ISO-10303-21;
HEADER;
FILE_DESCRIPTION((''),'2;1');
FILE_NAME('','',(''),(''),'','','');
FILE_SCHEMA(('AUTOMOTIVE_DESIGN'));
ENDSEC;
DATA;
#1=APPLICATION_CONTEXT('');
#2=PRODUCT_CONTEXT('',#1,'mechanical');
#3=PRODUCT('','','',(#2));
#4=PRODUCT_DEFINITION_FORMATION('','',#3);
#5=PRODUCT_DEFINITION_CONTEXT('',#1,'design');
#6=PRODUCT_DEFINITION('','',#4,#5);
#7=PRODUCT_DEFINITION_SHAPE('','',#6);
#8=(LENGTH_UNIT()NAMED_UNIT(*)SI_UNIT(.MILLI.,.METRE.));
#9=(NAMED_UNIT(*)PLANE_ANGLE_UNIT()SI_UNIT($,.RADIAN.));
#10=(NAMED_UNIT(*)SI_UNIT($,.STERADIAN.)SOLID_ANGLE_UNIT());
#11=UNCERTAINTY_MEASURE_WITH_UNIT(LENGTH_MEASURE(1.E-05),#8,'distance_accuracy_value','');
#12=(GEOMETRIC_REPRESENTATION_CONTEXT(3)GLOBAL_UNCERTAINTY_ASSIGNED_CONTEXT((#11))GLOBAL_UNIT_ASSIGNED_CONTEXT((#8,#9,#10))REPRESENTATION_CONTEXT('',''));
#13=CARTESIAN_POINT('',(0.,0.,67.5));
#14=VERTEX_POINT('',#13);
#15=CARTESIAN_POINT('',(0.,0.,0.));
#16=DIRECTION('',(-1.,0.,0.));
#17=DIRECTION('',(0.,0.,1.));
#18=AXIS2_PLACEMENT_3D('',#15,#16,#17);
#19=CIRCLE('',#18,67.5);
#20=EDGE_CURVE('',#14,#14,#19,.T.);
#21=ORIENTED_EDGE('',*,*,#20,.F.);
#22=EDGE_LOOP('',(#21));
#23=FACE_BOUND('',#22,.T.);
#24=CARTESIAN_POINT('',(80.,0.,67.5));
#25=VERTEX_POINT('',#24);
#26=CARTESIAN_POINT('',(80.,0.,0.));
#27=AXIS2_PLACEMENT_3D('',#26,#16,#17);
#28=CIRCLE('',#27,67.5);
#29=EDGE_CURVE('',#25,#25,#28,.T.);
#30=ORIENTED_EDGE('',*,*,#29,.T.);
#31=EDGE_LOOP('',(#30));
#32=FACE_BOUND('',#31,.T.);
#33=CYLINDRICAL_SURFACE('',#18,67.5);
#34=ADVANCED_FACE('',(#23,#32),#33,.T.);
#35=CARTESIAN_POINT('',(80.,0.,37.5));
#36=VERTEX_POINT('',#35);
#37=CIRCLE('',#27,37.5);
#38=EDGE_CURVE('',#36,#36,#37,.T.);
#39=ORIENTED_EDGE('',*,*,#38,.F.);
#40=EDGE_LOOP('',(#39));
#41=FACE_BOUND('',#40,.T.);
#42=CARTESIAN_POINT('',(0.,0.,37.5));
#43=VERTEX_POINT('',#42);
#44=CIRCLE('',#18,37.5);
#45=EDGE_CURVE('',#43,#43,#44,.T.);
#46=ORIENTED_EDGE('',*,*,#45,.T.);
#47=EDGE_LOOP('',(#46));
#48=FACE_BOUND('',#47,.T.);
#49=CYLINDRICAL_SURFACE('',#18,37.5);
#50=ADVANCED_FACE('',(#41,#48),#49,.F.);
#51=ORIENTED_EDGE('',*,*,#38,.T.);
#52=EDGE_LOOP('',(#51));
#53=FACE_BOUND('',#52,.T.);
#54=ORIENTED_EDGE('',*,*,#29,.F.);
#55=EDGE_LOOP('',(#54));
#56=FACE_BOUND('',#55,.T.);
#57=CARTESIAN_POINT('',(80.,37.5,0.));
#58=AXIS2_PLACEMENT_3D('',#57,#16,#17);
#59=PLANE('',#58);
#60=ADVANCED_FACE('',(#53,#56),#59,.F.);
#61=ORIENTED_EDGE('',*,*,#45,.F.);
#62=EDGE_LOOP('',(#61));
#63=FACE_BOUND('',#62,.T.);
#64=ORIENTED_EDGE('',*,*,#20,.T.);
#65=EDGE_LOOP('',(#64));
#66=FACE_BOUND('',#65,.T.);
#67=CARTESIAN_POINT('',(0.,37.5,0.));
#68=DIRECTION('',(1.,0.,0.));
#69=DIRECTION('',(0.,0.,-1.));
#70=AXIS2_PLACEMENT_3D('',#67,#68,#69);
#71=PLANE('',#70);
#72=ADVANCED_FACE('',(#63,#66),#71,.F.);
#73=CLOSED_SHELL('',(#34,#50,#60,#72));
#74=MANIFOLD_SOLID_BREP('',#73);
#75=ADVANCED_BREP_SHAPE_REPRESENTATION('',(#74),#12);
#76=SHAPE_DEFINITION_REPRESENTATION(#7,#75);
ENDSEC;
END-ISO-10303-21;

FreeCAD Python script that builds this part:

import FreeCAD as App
import Part
import Sketcher

V = App.Vector
Q = App.Units.Quantity


def add_polygon(sketch, points):
    """Adds a closed chain of lines whose ends are joined by coincident constraints."""
    first, n = sketch.GeometryCount, len(points)
    for a, b in zip(points, points[1:] + points[:1]):
        sketch.addGeometry(Part.LineSegment(App.Vector(*a, 0), App.Vector(*b, 0)), False)
    for i in range(n):
        sketch.addConstraint(Sketcher.Constraint("Coincident", first + i, 2, first + (i + 1) % n, 1))

doc = App.newDocument("Part")
body = doc.addObject("PartDesign::Body", "Body")

sketch1 = body.newObject("Sketcher::SketchObject", "Sketch")
sketch1.AttachmentSupport = (doc.getObject("XY_Plane"), [""])
sketch1.MapMode = "FlatFace"
add_polygon(sketch1, [(0, 68), (0, 38), (80, 38), (80, 68)])
sketch1.addConstraint([
    Sketcher.Constraint("Vertical", 0),
    Sketcher.Constraint("Horizontal", 1),
    Sketcher.Constraint("Vertical", 2),
    Sketcher.Constraint("Horizontal", 3),
    Sketcher.Constraint("PointOnObject", 0, 2, -2),
    Sketcher.Constraint("DistanceX", 1, 1, 1, 2, Q("80 mm")),
    Sketcher.Constraint("DistanceY", 0, 2, 0, 1, Q("30 mm")),
    Sketcher.Constraint("DistanceY", -1, 1, 0, 2, Q("37.5 mm")),
])
revolution = body.newObject("PartDesign::Revolution", "Revolution")
revolution.Profile = sketch1
revolution.ReferenceAxis = (sketch1, ["H_Axis"])
revolution.Angle = 360

doc.recompute()
